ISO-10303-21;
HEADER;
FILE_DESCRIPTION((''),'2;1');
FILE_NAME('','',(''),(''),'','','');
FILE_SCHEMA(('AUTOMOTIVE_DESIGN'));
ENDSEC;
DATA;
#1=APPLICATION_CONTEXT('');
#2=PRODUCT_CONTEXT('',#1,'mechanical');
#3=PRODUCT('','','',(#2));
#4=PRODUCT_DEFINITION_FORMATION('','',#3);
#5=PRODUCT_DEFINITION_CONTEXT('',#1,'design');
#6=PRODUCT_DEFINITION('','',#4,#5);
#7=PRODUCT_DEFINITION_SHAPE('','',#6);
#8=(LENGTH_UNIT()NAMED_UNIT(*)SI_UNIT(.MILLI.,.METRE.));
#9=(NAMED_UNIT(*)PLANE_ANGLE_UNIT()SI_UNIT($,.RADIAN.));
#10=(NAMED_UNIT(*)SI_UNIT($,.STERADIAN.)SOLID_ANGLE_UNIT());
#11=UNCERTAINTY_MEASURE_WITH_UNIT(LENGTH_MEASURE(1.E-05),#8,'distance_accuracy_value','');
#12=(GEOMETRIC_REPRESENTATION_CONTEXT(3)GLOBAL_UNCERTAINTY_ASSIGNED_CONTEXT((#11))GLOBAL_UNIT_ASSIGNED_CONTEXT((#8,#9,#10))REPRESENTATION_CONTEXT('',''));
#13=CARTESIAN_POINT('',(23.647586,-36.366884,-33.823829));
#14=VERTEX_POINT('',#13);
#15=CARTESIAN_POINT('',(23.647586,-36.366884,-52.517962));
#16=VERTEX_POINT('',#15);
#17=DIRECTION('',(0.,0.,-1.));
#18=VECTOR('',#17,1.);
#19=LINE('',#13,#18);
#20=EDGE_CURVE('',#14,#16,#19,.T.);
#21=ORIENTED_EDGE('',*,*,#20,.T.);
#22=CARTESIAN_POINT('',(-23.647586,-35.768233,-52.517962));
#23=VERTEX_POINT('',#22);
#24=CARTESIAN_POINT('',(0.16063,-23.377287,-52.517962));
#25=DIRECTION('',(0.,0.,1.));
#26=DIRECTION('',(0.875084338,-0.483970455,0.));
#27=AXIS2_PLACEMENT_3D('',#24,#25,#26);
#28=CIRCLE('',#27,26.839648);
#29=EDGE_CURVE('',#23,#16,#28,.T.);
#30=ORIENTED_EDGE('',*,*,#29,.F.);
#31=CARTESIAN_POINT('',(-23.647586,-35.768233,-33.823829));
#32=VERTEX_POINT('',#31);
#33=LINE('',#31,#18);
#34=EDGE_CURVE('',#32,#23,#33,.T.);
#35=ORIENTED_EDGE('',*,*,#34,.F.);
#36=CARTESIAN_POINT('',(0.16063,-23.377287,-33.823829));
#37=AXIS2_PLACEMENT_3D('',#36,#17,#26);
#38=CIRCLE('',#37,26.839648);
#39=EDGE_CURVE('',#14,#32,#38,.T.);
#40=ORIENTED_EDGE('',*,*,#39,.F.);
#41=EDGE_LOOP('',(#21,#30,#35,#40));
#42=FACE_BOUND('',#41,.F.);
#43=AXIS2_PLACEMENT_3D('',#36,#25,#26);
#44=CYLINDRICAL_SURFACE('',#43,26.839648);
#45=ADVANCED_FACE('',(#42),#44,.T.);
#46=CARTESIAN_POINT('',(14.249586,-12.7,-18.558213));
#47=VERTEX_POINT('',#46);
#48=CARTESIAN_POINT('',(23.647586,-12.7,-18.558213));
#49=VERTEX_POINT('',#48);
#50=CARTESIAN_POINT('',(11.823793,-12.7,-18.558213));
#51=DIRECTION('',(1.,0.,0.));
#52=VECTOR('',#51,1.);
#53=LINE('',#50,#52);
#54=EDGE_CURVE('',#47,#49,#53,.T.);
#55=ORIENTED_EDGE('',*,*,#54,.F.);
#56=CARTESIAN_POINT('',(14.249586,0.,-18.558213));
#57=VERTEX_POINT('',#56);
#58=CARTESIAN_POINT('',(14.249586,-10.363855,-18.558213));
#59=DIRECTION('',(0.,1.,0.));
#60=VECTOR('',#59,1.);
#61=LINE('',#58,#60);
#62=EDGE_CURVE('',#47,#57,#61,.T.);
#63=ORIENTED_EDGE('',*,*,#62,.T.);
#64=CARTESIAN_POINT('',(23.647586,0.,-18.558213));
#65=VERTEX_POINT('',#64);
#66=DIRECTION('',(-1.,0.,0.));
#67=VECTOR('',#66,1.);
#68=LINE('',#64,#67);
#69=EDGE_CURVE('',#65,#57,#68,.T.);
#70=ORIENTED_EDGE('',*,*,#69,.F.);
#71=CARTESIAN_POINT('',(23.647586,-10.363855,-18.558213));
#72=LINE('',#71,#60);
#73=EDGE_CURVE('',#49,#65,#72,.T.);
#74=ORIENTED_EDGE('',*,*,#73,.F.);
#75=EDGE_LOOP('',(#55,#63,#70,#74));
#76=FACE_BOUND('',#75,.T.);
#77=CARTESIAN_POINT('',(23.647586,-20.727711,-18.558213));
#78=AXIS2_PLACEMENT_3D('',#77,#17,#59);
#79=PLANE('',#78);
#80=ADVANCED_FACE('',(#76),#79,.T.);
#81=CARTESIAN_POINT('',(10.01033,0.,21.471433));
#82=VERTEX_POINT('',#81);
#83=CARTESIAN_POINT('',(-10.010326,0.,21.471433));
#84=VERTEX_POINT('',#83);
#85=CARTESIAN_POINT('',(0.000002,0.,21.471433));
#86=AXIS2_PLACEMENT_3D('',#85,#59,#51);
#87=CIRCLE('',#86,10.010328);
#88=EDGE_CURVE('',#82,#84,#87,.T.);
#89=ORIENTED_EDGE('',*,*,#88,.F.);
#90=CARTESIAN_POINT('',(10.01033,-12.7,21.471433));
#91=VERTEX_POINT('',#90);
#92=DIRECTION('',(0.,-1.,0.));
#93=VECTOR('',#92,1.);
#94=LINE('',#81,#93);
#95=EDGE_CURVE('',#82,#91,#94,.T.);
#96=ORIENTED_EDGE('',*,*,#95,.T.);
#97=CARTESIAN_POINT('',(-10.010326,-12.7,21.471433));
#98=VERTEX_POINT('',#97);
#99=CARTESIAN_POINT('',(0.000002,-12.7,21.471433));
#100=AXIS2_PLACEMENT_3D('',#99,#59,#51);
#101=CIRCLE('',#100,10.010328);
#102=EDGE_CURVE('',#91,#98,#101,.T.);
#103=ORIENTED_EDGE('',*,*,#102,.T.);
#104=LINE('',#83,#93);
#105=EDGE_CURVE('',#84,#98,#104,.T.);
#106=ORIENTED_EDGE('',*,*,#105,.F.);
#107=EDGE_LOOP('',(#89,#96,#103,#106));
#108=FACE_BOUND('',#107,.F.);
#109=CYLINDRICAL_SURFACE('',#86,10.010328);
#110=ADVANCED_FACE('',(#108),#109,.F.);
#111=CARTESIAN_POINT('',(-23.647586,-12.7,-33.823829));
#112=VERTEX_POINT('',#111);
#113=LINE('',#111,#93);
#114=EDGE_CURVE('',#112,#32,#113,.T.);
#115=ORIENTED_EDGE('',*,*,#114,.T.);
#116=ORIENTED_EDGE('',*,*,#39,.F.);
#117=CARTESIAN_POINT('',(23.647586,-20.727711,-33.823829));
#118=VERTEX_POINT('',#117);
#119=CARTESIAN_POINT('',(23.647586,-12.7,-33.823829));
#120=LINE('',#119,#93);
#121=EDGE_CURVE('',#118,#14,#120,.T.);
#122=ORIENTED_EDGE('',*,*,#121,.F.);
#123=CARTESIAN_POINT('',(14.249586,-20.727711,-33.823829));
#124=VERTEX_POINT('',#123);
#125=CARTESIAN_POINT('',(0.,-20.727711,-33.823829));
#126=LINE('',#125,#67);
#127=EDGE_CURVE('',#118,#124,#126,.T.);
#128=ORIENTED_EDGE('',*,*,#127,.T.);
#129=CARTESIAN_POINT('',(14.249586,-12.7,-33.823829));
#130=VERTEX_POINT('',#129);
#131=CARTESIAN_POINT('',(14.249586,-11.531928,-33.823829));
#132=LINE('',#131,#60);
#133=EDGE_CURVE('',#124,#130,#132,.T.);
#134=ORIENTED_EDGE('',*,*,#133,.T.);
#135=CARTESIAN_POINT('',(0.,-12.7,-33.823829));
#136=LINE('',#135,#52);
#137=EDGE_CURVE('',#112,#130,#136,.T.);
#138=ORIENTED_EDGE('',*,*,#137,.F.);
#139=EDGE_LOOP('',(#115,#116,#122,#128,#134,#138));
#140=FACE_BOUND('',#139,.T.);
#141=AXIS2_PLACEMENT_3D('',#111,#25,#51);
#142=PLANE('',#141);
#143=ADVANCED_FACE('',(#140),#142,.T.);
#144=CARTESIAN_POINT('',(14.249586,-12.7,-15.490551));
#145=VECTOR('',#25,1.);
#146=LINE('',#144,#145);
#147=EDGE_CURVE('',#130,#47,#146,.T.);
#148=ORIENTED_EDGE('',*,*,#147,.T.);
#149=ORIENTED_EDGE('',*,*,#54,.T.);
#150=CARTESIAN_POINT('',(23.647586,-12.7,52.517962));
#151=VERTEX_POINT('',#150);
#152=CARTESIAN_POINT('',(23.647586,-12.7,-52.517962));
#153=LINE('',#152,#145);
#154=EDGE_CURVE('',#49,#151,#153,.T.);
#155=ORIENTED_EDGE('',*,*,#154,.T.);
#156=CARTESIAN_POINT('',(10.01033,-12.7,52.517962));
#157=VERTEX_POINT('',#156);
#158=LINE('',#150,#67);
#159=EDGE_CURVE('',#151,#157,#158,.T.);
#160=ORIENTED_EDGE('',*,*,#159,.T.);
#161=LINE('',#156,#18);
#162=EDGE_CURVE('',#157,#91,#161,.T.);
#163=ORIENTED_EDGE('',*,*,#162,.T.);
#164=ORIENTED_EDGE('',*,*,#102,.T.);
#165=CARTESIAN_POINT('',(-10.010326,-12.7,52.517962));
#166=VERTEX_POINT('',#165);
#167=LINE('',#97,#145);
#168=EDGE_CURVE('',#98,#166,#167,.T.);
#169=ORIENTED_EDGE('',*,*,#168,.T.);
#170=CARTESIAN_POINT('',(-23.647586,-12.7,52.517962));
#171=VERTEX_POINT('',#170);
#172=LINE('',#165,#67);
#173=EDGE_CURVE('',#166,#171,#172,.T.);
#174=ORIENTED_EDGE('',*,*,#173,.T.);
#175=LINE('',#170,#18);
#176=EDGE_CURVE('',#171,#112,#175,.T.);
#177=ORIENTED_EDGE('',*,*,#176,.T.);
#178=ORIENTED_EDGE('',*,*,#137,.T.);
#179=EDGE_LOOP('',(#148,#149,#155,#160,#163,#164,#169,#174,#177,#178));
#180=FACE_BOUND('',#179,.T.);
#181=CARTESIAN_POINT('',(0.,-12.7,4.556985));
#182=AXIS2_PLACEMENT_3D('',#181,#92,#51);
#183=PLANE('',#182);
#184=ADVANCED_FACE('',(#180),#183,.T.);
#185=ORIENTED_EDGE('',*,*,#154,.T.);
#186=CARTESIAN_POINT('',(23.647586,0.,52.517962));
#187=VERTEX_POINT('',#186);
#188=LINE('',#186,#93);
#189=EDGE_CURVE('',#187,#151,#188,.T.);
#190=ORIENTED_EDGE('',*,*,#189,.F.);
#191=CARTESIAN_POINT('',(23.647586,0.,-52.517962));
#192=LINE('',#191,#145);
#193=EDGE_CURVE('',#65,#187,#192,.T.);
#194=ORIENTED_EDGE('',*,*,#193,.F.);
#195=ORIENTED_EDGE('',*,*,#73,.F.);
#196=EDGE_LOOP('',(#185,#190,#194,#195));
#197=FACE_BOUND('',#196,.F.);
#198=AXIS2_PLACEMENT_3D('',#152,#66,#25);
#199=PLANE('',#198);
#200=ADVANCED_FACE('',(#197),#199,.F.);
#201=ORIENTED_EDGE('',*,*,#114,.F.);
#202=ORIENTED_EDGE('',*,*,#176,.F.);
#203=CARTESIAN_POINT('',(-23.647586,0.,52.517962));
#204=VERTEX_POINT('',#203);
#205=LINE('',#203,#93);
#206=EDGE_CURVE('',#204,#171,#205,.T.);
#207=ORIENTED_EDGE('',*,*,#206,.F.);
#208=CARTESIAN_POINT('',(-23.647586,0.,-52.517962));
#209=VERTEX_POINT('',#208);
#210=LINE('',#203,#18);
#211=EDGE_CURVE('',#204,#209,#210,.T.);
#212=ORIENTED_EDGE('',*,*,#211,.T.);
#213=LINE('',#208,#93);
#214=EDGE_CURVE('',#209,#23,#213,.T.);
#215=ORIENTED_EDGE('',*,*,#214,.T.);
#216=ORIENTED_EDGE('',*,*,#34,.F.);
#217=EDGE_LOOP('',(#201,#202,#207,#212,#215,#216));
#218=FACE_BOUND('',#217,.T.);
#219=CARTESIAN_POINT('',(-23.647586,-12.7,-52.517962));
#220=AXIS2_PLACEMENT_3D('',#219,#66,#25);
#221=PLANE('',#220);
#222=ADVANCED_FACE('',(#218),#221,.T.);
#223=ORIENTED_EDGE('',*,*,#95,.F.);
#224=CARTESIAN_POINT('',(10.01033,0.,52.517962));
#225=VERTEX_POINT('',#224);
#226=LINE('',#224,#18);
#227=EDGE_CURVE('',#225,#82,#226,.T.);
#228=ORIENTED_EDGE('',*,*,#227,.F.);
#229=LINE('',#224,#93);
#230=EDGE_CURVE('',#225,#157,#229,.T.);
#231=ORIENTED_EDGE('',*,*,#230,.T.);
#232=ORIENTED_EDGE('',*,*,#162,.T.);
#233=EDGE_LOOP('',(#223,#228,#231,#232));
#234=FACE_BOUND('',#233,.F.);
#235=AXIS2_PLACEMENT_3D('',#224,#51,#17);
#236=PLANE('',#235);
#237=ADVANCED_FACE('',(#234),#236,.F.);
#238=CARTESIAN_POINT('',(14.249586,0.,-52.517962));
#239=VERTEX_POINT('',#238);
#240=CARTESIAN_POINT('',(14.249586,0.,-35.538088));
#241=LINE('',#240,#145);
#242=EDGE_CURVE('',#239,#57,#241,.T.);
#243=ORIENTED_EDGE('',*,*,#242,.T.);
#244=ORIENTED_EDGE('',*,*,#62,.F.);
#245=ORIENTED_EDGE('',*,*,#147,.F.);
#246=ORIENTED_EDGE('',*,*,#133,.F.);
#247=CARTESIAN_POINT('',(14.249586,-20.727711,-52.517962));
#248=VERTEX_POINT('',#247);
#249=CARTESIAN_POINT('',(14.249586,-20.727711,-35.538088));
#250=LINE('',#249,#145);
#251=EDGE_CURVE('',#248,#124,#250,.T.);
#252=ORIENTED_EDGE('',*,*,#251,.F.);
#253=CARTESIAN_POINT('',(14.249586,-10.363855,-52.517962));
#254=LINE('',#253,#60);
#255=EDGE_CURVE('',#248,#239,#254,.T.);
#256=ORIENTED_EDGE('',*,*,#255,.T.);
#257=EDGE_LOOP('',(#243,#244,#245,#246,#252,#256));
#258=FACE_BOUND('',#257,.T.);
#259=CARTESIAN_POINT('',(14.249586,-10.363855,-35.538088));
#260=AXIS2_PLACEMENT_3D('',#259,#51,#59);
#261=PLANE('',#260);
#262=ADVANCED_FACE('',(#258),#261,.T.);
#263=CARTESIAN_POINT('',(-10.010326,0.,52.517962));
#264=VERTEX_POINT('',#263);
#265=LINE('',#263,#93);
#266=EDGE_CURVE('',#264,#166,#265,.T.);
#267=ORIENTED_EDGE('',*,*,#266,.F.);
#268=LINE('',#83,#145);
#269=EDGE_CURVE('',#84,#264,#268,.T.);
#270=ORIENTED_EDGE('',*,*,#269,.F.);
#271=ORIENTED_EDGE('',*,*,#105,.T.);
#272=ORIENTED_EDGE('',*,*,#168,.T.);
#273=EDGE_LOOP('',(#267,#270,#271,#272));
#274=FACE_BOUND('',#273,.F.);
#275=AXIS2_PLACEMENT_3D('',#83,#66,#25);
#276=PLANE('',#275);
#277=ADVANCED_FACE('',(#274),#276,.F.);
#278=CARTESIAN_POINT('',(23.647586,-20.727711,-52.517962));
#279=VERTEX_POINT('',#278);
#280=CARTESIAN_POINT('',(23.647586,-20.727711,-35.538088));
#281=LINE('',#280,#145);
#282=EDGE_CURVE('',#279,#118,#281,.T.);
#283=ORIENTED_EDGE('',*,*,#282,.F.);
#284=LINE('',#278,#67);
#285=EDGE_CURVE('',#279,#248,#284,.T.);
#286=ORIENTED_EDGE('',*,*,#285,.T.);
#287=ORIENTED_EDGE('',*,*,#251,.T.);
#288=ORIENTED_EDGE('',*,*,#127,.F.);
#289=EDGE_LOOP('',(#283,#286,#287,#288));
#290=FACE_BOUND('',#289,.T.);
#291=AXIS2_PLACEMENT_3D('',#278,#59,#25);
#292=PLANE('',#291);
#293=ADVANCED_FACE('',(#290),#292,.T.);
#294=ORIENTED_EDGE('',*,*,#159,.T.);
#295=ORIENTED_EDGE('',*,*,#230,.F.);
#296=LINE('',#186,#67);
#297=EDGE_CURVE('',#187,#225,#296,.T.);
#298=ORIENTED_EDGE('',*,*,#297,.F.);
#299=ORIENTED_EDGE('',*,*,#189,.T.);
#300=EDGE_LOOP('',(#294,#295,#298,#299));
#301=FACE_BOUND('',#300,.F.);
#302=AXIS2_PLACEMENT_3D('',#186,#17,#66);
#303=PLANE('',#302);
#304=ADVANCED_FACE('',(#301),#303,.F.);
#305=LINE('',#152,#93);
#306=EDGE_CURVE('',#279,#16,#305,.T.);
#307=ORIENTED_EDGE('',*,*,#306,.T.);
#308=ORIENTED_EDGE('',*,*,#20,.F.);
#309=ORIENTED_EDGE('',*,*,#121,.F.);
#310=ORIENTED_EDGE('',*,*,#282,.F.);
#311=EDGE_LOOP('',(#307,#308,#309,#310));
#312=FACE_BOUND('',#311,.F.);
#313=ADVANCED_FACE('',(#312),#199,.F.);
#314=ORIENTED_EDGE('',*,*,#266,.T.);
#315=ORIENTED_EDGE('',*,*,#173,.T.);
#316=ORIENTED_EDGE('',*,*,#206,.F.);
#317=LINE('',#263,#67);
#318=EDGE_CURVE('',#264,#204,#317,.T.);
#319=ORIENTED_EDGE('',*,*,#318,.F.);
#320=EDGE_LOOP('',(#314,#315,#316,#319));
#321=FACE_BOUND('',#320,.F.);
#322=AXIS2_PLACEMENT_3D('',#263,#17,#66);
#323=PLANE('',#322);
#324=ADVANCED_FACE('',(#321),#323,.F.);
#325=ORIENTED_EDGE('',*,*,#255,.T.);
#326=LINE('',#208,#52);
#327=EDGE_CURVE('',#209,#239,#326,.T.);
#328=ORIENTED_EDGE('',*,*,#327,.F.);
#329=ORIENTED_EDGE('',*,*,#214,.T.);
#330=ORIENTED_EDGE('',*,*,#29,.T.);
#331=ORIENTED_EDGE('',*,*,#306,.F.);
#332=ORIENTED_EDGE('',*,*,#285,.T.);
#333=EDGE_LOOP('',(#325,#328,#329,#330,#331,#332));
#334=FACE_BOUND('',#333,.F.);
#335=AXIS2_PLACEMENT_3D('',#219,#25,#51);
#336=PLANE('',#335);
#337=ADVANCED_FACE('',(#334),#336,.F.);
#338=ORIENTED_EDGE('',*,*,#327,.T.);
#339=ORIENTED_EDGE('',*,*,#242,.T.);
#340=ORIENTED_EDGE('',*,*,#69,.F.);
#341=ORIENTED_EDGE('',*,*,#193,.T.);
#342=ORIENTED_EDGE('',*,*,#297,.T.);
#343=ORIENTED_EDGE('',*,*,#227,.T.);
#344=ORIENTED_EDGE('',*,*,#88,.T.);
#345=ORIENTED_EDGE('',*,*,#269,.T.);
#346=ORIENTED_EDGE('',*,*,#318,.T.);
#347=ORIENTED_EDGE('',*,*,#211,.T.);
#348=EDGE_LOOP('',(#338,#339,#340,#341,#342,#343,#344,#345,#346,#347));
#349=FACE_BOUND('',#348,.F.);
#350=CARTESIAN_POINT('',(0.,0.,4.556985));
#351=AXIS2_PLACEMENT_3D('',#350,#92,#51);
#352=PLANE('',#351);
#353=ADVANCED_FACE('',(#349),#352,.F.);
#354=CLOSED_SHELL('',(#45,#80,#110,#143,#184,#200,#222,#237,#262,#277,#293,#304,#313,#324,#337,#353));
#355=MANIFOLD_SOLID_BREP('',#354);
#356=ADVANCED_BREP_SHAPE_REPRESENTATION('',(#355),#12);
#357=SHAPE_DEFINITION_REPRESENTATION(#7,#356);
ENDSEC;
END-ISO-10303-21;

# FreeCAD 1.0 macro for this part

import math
import FreeCAD as App
import Part
import Sketcher
from FreeCAD import Vector
Q = App.Units.Quantity


def add_polygon(sketch, points):
    """Adds a closed chain of lines whose ends are joined by coincident constraints."""
    first, n = sketch.GeometryCount, len(points)
    for a, b in zip(points, points[1:] + points[:1]):
        sketch.addGeometry(Part.LineSegment(App.Vector(*a, 0), App.Vector(*b, 0)), False)
    for i in range(n):
        sketch.addConstraint(Sketcher.Constraint("Coincident", first + i, 2, first + (i + 1) % n, 1))

doc = App.newDocument("Part")
params = doc.addObject("Spreadsheet::Sheet", "Params")
for row, (alias, value) in enumerate([
    ("pad1_length", "0.5 in"),
    ("pad2_length", "1.51 in"),
    ("pocket1_length", "1 in"),
    ("pocket2_length", "0.37 in"),
], start=1):
    params.set(f"A{row}", alias)
    params.set(f"B{row}", "=" + value)
    params.setAlias(f"B{row}", alias)

body = doc.addObject("PartDesign::Body", "Body")

sketch1 = body.newObject("Sketcher::SketchObject", "Sketch")
sketch1.AttachmentSupport = (doc.getObject("XZ_Plane"), [""])
sketch1.MapMode = "FlatFace"
sketch1.addGeometry([
    Part.LineSegment(Vector(-10, 53, 0), Vector(-24, 53, 0)),
    Part.LineSegment(Vector(-24, 53, 0), Vector(-24, -53, 0)),
    Part.LineSegment(Vector(-24, -53, 0), Vector(24, -53, 0)),
    Part.LineSegment(Vector(24, -53, 0), Vector(24, 53, 0)),
    Part.LineSegment(Vector(24, 53, 0), Vector(10, 53, 0)),
    Part.LineSegment(Vector(10, 53, 0), Vector(10, 21, 0)),
    Part.ArcOfCircle(Part.Circle(Vector(0, 21, 0), Vector(0, 0, 1), 10), math.radians(-180), math.radians(0)),
    Part.LineSegment(Vector(-10, 21, 0), Vector(-10, 53, 0)),
], False)
sketch1.addConstraint([
    Sketcher.Constraint("Coincident", 0, 2, 1, 1),
    Sketcher.Constraint("Coincident", 1, 2, 2, 1),
    Sketcher.Constraint("Coincident", 2, 2, 3, 1),
    Sketcher.Constraint("Coincident", 3, 2, 4, 1),
    Sketcher.Constraint("Coincident", 4, 2, 5, 1),
    Sketcher.Constraint("Tangent", 5, 2, 6, 2),
    Sketcher.Constraint("Tangent", 6, 1, 7, 1),
    Sketcher.Constraint("Coincident", 7, 2, 0, 1),
    Sketcher.Constraint("Horizontal", 0),
    Sketcher.Constraint("Vertical", 1),
    Sketcher.Constraint("Horizontal", 2),
    Sketcher.Constraint("Vertical", 3),
    Sketcher.Constraint("Horizontal", 4),
    Sketcher.Constraint("Vertical", 5),
    Sketcher.Constraint("Vertical", 7),
    Sketcher.Constraint("Symmetric", 0, 2, 2, 2, -1, 1),
    Sketcher.Constraint("Symmetric", 4, 2, 7, 2, -2),
    Sketcher.Constraint("DistanceX", 0, 2, 0, 1, Q("0.5369 in")),
    Sketcher.Constraint("Radius", 6, 10.010328),
    Sketcher.Constraint("DistanceY", 5, 2, 5, 1, 31.046528),
    Sketcher.Constraint("DistanceY", 1, 2, 1, 1, 105.035923),
])
pad1 = body.newObject("PartDesign::Pad", "Pad")
pad1.Profile = sketch1
pad1.setExpression("Length", "Params.pad1_length")

sketch2 = body.newObject("Sketcher::SketchObject", "Sketch001")
sketch2.AttachmentSupport = (doc.getObject("XZ_Plane"), [""])
sketch2.MapMode = "FlatFace"
sketch2.AttachmentOffset = App.Placement(Vector(0, 0, 0.5 * 25.4), App.Rotation())
add_polygon(sketch2, [(-24, -34), (-24, -53), (24, -53), (24, -34)])
sketch2.addConstraint([
    Sketcher.Constraint("Vertical", 0),
    Sketcher.Constraint("Horizontal", 1),
    Sketcher.Constraint("Vertical", 2),
    Sketcher.Constraint("Horizontal", 3),
    Sketcher.Constraint("DistanceX", 1, 1, 1, 2, 47.295172),
    Sketcher.Constraint("DistanceY", 0, 2, 0, 1, 18.694133),
    Sketcher.Constraint("DistanceY", 0, 2, -1, 1, 52.517962),
    Sketcher.Constraint("DistanceX", 0, 2, -1, 1, 23.647586),
])
pad2 = body.newObject("PartDesign::Pad", "Pad001")
pad2.Profile = sketch2
pad2.setExpression("Length", "Params.pad2_length")

sketch3 = body.newObject("Sketcher::SketchObject", "Sketch002")
sketch3.AttachmentSupport = (doc.getObject("XY_Plane"), [""])
sketch3.MapMode = "FlatFace"
sketch3.AttachmentOffset = App.Placement(Vector(0, 0, -33.823829), App.Rotation())
sketch3.addGeometry([
    Part.ArcOfCircle(Part.Circle(Vector(0, -23, 0), Vector(0, 0, 1), 27), math.radians(-153), math.radians(-29)),
    Part.LineSegment(Vector(-24, -36, 0), Vector(-24, -51, 0)),
    Part.LineSegment(Vector(-24, -51, 0), Vector(24, -51, 0)),
    Part.LineSegment(Vector(24, -51, 0), Vector(24, -36, 0)),
], False)
sketch3.addConstraint([
    Sketcher.Constraint("Coincident", 0, 1, 1, 1),
    Sketcher.Constraint("Coincident", 1, 2, 2, 1),
    Sketcher.Constraint("Coincident", 2, 2, 3, 1),
    Sketcher.Constraint("Coincident", 3, 2, 0, 2),
    Sketcher.Constraint("Vertical", 1),
    Sketcher.Constraint("Horizontal", 2),
    Sketcher.Constraint("Vertical", 3),
    Sketcher.Constraint("DistanceY", 1, 2, -1, 1, Q("2.01 in")),
    Sketcher.Constraint("Radius", 0, 26.839648),
    Sketcher.Constraint("DistanceX", 2, 1, 2, 2, 47.295172),
    Sketcher.Constraint("DistanceY", 1, 2, 1, 1, 15.285767),
    Sketcher.Constraint("DistanceY", 3, 1, 3, 2, 14.687116),
    Sketcher.Constraint("DistanceX", -1, 1, 0, 3, 0.16063),
])
pocket1 = body.newObject("PartDesign::Pocket", "Pocket")
pocket1.Profile = sketch3
pocket1.setExpression("Length", "Params.pocket1_length")

sketch4 = body.newObject("Sketcher::SketchObject", "Sketch003")
sketch4.AttachmentSupport = (doc.getObject("YZ_Plane"), [""])
sketch4.MapMode = "FlatFace"
sketch4.AttachmentOffset = App.Placement(Vector(0, 0, 23.647586), App.Rotation())
add_polygon(sketch4, [(-21, -19), (-21, -53), (0, -53), (0, -19)])
sketch4.addConstraint([
    Sketcher.Constraint("Vertical", 0),
    Sketcher.Constraint("Horizontal", 1),
    Sketcher.Constraint("Vertical", 2),
    Sketcher.Constraint("Horizontal", 3),
    Sketcher.Constraint("PointOnObject", 1, 2, -2),
    Sketcher.Constraint("DistanceX", 1, 1, 1, 2, 20.727711),
    Sketcher.Constraint("DistanceY", 0, 2, 0, 1, 33.959748),
    Sketcher.Constraint("DistanceY", 0, 2, -1, 1, 52.517962),
])
pocket2 = body.newObject("PartDesign::Pocket", "Pocket001")
pocket2.Profile = sketch4
pocket2.setExpression("Length", "Params.pocket2_length")

doc.recompute()
